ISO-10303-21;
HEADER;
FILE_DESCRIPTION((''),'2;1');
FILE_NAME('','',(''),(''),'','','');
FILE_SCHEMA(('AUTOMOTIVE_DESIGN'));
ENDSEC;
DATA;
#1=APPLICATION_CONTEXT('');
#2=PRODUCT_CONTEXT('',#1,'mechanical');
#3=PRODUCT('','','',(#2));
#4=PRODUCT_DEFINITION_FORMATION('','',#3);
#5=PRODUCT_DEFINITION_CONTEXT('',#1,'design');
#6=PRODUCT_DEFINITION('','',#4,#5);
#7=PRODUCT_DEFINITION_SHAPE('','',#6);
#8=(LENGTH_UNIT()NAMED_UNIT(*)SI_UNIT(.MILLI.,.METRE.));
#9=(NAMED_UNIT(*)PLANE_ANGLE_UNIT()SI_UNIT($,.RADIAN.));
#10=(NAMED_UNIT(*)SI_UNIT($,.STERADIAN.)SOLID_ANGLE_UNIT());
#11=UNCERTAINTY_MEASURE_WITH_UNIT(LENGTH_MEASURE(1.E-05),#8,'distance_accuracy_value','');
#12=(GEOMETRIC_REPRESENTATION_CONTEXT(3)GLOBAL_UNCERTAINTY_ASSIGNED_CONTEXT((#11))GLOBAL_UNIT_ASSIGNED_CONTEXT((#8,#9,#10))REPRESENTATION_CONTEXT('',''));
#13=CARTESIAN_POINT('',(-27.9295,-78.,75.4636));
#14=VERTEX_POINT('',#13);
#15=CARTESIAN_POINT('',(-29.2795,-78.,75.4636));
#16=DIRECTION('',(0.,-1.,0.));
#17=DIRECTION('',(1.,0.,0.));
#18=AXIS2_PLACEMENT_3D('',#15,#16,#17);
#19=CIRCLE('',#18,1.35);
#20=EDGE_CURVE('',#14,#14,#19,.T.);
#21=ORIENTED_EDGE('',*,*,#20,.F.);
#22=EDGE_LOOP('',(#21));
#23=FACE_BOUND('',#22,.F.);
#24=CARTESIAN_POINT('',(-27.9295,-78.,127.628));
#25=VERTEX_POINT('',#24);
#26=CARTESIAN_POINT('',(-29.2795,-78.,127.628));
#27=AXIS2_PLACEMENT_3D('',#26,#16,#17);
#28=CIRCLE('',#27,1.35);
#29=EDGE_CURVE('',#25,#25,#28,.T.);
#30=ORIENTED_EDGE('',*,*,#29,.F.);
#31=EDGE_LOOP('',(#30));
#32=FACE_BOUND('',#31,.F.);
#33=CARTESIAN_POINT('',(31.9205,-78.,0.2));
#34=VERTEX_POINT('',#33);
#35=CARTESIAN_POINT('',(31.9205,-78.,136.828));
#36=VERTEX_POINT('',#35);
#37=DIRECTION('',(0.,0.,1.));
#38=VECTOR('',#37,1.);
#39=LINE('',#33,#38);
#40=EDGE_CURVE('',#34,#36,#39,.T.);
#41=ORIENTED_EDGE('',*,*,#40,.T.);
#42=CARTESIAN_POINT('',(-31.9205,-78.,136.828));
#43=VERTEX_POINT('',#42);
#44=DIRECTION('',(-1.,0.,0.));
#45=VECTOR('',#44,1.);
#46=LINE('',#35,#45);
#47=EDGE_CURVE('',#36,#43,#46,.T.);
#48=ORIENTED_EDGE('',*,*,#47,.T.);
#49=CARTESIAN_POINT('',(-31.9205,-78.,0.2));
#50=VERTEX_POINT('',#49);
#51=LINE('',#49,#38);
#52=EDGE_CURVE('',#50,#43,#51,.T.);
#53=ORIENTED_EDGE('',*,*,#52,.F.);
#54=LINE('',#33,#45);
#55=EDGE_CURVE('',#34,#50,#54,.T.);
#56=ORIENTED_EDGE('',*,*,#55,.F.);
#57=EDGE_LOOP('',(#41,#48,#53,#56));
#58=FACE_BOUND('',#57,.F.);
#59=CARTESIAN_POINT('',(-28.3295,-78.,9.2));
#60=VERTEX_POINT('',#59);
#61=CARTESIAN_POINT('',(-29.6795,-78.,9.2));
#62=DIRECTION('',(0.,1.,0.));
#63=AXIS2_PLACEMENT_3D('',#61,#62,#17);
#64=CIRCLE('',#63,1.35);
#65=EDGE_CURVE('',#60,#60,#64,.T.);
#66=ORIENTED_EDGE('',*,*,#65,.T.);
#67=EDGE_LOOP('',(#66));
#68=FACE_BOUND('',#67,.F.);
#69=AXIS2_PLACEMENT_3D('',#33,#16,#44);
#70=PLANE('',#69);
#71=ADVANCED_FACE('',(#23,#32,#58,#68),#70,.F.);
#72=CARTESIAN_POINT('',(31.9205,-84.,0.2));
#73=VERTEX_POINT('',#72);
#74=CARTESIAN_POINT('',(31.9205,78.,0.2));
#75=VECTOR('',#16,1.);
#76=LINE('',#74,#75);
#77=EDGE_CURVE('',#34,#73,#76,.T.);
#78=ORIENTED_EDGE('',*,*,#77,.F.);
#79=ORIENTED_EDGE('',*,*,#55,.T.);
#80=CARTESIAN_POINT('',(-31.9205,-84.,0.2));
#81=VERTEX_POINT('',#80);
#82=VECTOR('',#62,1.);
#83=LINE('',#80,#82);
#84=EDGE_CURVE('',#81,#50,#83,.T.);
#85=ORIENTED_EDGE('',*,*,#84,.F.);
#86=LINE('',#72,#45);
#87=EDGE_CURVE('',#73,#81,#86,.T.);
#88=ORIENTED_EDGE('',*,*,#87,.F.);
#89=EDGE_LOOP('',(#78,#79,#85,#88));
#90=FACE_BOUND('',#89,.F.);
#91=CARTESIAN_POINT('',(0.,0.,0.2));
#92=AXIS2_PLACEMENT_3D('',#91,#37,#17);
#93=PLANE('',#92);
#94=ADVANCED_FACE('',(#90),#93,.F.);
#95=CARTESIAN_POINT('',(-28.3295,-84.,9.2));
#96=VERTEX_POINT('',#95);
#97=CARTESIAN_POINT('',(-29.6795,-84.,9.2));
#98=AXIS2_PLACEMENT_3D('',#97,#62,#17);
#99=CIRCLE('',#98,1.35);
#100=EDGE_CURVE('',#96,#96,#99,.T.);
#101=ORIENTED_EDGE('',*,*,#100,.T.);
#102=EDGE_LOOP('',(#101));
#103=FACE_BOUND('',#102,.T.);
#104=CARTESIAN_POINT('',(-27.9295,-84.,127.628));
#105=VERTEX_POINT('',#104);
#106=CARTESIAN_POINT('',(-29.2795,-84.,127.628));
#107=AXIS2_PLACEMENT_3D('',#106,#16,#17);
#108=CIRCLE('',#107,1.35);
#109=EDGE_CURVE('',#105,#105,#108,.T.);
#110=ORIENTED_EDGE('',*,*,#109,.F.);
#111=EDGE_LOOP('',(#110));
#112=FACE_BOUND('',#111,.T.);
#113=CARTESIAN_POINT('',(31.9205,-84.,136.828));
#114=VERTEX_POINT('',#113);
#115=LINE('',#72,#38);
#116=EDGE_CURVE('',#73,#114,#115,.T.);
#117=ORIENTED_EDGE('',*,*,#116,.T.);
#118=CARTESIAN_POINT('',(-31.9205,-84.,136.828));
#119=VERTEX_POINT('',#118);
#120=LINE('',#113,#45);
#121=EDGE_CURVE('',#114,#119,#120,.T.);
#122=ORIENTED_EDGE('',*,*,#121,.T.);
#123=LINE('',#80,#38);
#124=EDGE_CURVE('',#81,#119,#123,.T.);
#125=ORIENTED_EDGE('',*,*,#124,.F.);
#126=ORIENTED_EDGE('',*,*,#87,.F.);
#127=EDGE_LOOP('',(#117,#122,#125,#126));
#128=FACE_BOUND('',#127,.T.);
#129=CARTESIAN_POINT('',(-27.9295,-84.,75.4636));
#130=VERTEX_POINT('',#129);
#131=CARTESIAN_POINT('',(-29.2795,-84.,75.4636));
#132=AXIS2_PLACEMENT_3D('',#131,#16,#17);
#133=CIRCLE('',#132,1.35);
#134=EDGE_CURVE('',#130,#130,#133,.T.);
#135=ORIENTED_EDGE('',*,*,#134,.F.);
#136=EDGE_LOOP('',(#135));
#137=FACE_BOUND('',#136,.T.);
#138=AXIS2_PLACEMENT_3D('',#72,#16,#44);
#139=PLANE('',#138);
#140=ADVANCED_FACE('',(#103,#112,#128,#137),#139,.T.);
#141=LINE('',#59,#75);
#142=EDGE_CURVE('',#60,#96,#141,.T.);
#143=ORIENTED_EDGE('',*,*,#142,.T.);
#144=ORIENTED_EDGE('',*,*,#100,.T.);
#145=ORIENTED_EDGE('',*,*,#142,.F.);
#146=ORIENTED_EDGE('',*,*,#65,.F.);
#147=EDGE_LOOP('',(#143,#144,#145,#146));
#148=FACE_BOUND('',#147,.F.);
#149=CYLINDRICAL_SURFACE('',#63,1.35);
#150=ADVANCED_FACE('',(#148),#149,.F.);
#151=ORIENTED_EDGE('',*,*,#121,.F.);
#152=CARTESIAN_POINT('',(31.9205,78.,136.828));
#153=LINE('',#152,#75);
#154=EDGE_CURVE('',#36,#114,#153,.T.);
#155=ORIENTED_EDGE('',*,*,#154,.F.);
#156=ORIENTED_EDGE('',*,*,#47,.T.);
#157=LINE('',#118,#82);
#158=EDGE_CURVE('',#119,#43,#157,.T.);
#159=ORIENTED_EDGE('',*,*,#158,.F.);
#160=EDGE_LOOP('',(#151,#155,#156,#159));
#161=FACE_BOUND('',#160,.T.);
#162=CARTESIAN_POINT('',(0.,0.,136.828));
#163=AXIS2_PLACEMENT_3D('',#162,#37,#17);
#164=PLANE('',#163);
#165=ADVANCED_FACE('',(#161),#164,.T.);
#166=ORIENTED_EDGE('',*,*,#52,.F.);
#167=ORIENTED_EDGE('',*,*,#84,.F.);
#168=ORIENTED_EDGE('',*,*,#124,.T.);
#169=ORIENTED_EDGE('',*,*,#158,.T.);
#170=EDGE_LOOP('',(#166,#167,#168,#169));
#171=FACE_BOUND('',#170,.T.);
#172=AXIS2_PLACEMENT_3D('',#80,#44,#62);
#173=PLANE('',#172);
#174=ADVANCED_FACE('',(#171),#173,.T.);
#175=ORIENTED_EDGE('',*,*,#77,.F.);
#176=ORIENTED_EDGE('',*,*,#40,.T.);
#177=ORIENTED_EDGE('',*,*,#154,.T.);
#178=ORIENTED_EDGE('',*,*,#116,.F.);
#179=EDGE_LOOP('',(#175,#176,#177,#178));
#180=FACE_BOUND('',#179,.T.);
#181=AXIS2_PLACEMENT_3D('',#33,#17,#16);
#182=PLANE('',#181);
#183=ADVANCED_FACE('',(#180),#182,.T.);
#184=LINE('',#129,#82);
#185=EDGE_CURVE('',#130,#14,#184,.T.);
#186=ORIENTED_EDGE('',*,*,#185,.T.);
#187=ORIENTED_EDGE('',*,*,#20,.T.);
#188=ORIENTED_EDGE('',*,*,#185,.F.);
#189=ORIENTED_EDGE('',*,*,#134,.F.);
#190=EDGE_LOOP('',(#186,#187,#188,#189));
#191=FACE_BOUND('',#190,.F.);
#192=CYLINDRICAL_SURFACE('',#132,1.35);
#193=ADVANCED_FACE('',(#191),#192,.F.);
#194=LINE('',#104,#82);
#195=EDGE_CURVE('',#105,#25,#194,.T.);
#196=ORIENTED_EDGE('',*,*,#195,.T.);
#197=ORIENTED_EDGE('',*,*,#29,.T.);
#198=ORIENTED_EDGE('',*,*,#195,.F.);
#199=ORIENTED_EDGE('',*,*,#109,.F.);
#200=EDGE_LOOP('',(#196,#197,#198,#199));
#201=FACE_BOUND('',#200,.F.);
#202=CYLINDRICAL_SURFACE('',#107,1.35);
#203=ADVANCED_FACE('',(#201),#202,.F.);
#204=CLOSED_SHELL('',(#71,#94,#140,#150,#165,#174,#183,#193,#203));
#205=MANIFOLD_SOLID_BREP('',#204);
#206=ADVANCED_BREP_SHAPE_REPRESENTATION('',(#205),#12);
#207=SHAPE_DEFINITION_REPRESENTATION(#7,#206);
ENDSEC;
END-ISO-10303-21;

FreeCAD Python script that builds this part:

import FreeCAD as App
import Part
import Sketcher

V = App.Vector


def add_polygon(sketch, points):
    """Adds a closed chain of lines whose ends are joined by coincident constraints."""
    first, n = sketch.GeometryCount, len(points)
    for a, b in zip(points, points[1:] + points[:1]):
        sketch.addGeometry(Part.LineSegment(App.Vector(*a, 0), App.Vector(*b, 0)), False)
    for i in range(n):
        sketch.addConstraint(Sketcher.Constraint("Coincident", first + i, 2, first + (i + 1) % n, 1))

doc = App.newDocument("Part")
body = doc.addObject("PartDesign::Body", "Body")

sketch1 = body.newObject("Sketcher::SketchObject", "Sketch")
sketch1.AttachmentSupport = (doc.getObject("XY_Plane"), [""])
sketch1.MapMode = "FlatFace"
sketch1.AttachmentOffset = App.Placement(V(0, 0, 0.2), App.Rotation())
add_polygon(sketch1, [(-32, -78), (-32, -84), (32, -84), (32, -78)])
sketch1.addConstraint([
    Sketcher.Constraint("Vertical", 0),
    Sketcher.Constraint("Horizontal", 1),
    Sketcher.Constraint("Vertical", 2),
    Sketcher.Constraint("Horizontal", 3),
    Sketcher.Constraint("DistanceY", 0, 2, 0, 1, 6.0),
    Sketcher.Constraint("DistanceY", 0, 2, -1, 1, 84.0),
    Sketcher.Constraint("DistanceX", 1, 1, 1, 2, 63.841),
    Sketcher.Constraint("DistanceX", 0, 2, -1, 1, 31.9205),
])
pad1 = body.newObject("PartDesign::Pad", "Pad")
pad1.Profile = sketch1
pad1.Length = 136.628

sketch2 = body.newObject("Sketcher::SketchObject", "Sketch001")
sketch2.AttachmentSupport = (doc.getObject("XZ_Plane"), [""])
sketch2.MapMode = "FlatFace"
sketch2.AttachmentOffset = App.Placement(V(0, 0, 84), App.Rotation())
sketch2.addGeometry(Part.Circle(V(-29.3, 75.5, 0), V(0, 0, 1), 1.4), False)
sketch2.addConstraint([
    Sketcher.Constraint("Diameter", 0, 2.7),
    Sketcher.Constraint("DistanceX", 0, 3, -1, 1, 29.2795),
    Sketcher.Constraint("DistanceY", -1, 1, 0, 3, 75.4636),
])
pocket1 = body.newObject("PartDesign::Pocket", "Pocket")
pocket1.Profile = sketch2
pocket1.Type = "ThroughAll"

sketch3 = body.newObject("Sketcher::SketchObject", "Sketch002")
sketch3.AttachmentSupport = (doc.getObject("XZ_Plane"), [""])
sketch3.MapMode = "FlatFace"
sketch3.AttachmentOffset = App.Placement(V(0, 0, 84), App.Rotation())
sketch3.addGeometry(Part.Circle(V(-29.3, 127.6, 0), V(0, 0, 1), 1.4), False)
sketch3.addConstraint([
    Sketcher.Constraint("Diameter", 0, 2.7),
    Sketcher.Constraint("DistanceY", -1, 1, 0, 3, 127.628),
    Sketcher.Constraint("DistanceX", 0, 3, -1, 1, 29.2795),
])
pocket2 = body.newObject("PartDesign::Pocket", "Pocket001")
pocket2.Profile = sketch3
pocket2.Type = "UpToFirst"

sketch4 = body.newObject("Sketcher::SketchObject", "Sketch003")
sketch4.AttachmentSupport = (doc.getObject("XZ_Plane"), [""])
sketch4.MapMode = "FlatFace"
sketch4.AttachmentOffset = App.Placement(V(0, 0, 78), App.Rotation())
sketch4.addGeometry(Part.Circle(V(-29.7, 9.2, 0), V(0, 0, 1), 1.4), False)
sketch4.addConstraint([
    Sketcher.Constraint("Diameter", 0, 2.7),
    Sketcher.Constraint("DistanceY", -1, 1, 0, 3, 9.2),
    Sketcher.Constraint("DistanceX", 0, 3, -1, 1, 29.6795),
])
pocket3 = body.newObject("PartDesign::Pocket", "Pocket002")
pocket3.Profile = sketch4
pocket3.Type = "UpToFirst"
pocket3.Reversed = True

doc.recompute()
